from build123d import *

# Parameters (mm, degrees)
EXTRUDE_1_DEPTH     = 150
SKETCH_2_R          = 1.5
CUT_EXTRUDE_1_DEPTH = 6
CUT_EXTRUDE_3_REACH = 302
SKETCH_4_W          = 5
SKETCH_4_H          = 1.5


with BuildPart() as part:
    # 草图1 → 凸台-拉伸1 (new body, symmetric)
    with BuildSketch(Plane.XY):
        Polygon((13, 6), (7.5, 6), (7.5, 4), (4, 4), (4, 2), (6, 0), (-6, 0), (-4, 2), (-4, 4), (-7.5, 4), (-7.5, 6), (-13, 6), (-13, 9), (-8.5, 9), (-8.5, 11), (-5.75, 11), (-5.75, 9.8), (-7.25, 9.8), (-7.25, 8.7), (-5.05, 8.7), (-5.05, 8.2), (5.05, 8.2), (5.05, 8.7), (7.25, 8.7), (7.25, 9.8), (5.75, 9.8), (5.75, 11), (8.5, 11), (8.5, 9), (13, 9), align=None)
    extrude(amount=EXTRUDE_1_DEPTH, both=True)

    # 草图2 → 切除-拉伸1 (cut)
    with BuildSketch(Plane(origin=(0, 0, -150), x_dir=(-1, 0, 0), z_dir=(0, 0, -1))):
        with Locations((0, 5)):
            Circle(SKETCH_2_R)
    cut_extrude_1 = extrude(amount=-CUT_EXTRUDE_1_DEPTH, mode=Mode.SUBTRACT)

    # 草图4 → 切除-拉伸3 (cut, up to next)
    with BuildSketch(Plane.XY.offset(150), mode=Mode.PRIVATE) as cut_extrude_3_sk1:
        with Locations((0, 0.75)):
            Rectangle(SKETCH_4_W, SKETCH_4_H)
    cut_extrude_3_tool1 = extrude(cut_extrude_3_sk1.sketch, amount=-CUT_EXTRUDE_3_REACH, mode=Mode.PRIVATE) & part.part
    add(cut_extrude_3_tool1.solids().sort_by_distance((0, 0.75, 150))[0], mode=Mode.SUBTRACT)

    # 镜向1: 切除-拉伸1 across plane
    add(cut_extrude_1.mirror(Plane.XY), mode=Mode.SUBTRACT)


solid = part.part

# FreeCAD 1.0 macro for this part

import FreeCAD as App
import Part
import Sketcher

V = App.Vector
Q = App.Units.Quantity

doc = App.newDocument("Part")
body = doc.addObject("PartDesign::Body", "Body")

sketch1 = doc.addObject("Sketcher::SketchObject", "Sketch")
body.addObject(sketch1)
sketch1.AttachmentSupport = (doc.XY_Plane, [""])
sketch1.MapMode = "FlatFace"
sketch1.addGeometry([
    Part.LineSegment(V(7.5, 6, 0), V(13, 6, 0)),
    Part.LineSegment(V(13, 6, 0), V(13, 9, 0)),
    Part.LineSegment(V(13, 9, 0), V(8.5, 9, 0)),
    Part.LineSegment(V(8.5, 9, 0), V(8.5, 11, 0)),
    Part.LineSegment(V(8.5, 11, 0), V(5.75, 11, 0)),
    Part.LineSegment(V(5.75, 11, 0), V(5.75, 9.8, 0)),
    Part.LineSegment(V(5.75, 9.8, 0), V(7.25, 9.8, 0)),
    Part.LineSegment(V(7.25, 9.8, 0), V(7.25, 8.7, 0)),
    Part.LineSegment(V(7.25, 8.7, 0), V(5.05, 8.7, 0)),
    Part.LineSegment(V(5.05, 8.7, 0), V(5.05, 8.2, 0)),
    Part.LineSegment(V(5.05, 8.2, 0), V(-5.05, 8.2, 0)),
    Part.LineSegment(V(-5.05, 8.2, 0), V(-5.05, 8.7, 0)),
    Part.LineSegment(V(-5.05, 8.7, 0), V(-7.25, 8.7, 0)),
    Part.LineSegment(V(-7.25, 8.7, 0), V(-7.25, 9.8, 0)),
    Part.LineSegment(V(-7.25, 9.8, 0), V(-5.75, 9.8, 0)),
    Part.LineSegment(V(-5.75, 9.8, 0), V(-5.75, 11, 0)),
    Part.LineSegment(V(-5.75, 11, 0), V(-8.5, 11, 0)),
    Part.LineSegment(V(-8.5, 11, 0), V(-8.5, 9, 0)),
    Part.LineSegment(V(-8.5, 9, 0), V(-13, 9, 0)),
    Part.LineSegment(V(-13, 9, 0), V(-13, 6, 0)),
    Part.LineSegment(V(-13, 6, 0), V(-7.5, 6, 0)),
    Part.LineSegment(V(-7.5, 6, 0), V(-7.5, 4, 0)),
    Part.LineSegment(V(-7.5, 4, 0), V(-4, 4, 0)),
    Part.LineSegment(V(-4, 4, 0), V(-4, 2, 0)),
    Part.LineSegment(V(-4, 2, 0), V(-6, 0, 0)),
    Part.LineSegment(V(-6, 0, 0), V(6, 0, 0)),
    Part.LineSegment(V(6, 0, 0), V(4, 2, 0)),
    Part.LineSegment(V(4, 2, 0), V(4, 4, 0)),
    Part.LineSegment(V(4, 4, 0), V(7.5, 4, 0)),
    Part.LineSegment(V(7.5, 4, 0), V(7.5, 6, 0)),
], False)
sketch1.addConstraint([
    Sketcher.Constraint("Coincident", 0, 2, 1, 1),
    Sketcher.Constraint("Coincident", 1, 2, 2, 1),
    Sketcher.Constraint("Coincident", 2, 2, 3, 1),
    Sketcher.Constraint("Coincident", 3, 2, 4, 1),
    Sketcher.Constraint("Coincident", 4, 2, 5, 1),
    Sketcher.Constraint("Coincident", 5, 2, 6, 1),
    Sketcher.Constraint("Coincident", 6, 2, 7, 1),
    Sketcher.Constraint("Coincident", 7, 2, 8, 1),
    Sketcher.Constraint("Coincident", 8, 2, 9, 1),
    Sketcher.Constraint("Coincident", 9, 2, 10, 1),
    Sketcher.Constraint("Coincident", 10, 2, 11, 1),
    Sketcher.Constraint("Coincident", 11, 2, 12, 1),
    Sketcher.Constraint("Coincident", 12, 2, 13, 1),
    Sketcher.Constraint("Coincident", 13, 2, 14, 1),
    Sketcher.Constraint("Coincident", 14, 2, 15, 1),
    Sketcher.Constraint("Coincident", 15, 2, 16, 1),
    Sketcher.Constraint("Coincident", 16, 2, 17, 1),
    Sketcher.Constraint("Coincident", 17, 2, 18, 1),
    Sketcher.Constraint("Coincident", 18, 2, 19, 1),
    Sketcher.Constraint("Coincident", 19, 2, 20, 1),
    Sketcher.Constraint("Coincident", 20, 2, 21, 1),
    Sketcher.Constraint("Coincident", 21, 2, 22, 1),
    Sketcher.Constraint("Coincident", 22, 2, 23, 1),
    Sketcher.Constraint("Coincident", 23, 2, 24, 1),
    Sketcher.Constraint("Coincident", 24, 2, 25, 1),
    Sketcher.Constraint("Coincident", 25, 2, 26, 1),
    Sketcher.Constraint("Coincident", 26, 2, 27, 1),
    Sketcher.Constraint("Coincident", 27, 2, 28, 1),
    Sketcher.Constraint("Coincident", 28, 2, 29, 1),
    Sketcher.Constraint("Coincident", 29, 2, 0, 1),
    Sketcher.Constraint("Horizontal", 0),
    Sketcher.Constraint("Vertical", 1),
    Sketcher.Constraint("Horizontal", 2),
    Sketcher.Constraint("Vertical", 3),
    Sketcher.Constraint("Horizontal", 4),
    Sketcher.Constraint("Vertical", 5),
    Sketcher.Constraint("Horizontal", 6),
    Sketcher.Constraint("Vertical", 7),
    Sketcher.Constraint("Horizontal", 8),
    Sketcher.Constraint("Vertical", 9),
    Sketcher.Constraint("Horizontal", 10),
    Sketcher.Constraint("Vertical", 11),
    Sketcher.Constraint("Horizontal", 12),
    Sketcher.Constraint("Vertical", 13),
    Sketcher.Constraint("Horizontal", 14),
    Sketcher.Constraint("Vertical", 15),
    Sketcher.Constraint("Horizontal", 16),
    Sketcher.Constraint("Vertical", 17),
    Sketcher.Constraint("Horizontal", 18),
    Sketcher.Constraint("Vertical", 19),
    Sketcher.Constraint("Horizontal", 20),
    Sketcher.Constraint("Vertical", 21),
    Sketcher.Constraint("Horizontal", 22),
    Sketcher.Constraint("Vertical", 23),
    Sketcher.Constraint("Horizontal", 25),
    Sketcher.Constraint("Vertical", 27),
    Sketcher.Constraint("Horizontal", 28),
    Sketcher.Constraint("Vertical", 29),
    Sketcher.Constraint("Symmetric", 24, 2, 25, 2, -1, 1),
    Sketcher.Constraint("Symmetric", 8, 2, 11, 2, -2),
    Sketcher.Constraint("Symmetric", 6, 2, 13, 2, -2),
    Sketcher.Constraint("Symmetric", 4, 2, 15, 2, -2),
    Sketcher.Constraint("Symmetric", 2, 2, 17, 2, -2),
    Sketcher.Constraint("Symmetric", 0, 2, 19, 2, -2),
    Sketcher.Constraint("Symmetric", 23, 2, 26, 2, -2),
    Sketcher.Constraint("Symmetric", 21, 2, 28, 2, -2),
    Sketcher.Constraint("Perpendicular", 24, 26),
    Sketcher.Constraint("Equal", 17, 21),
    Sketcher.Constraint("Equal", 21, 23),
    Sketcher.Constraint("DistanceX", 25, 1, 25, 2, Q("12 mm")),
    Sketcher.Constraint("DistanceY", 1, 1, 1, 2, Q("3 mm")),
    Sketcher.Constraint("DistanceY", 3, 1, 3, 2, Q("2 mm")),
    Sketcher.Constraint("DistanceX", 0, 1, 0, 2, Q("5.5 mm")),
    Sketcher.Constraint("DistanceX", 2, 2, 2, 1, Q("4.5 mm")),
    Sketcher.Constraint("DistanceX", 6, 1, 6, 2, Q("1.5 mm")),
    Sketcher.Constraint("DistanceX", 8, 2, 8, 1, Q("2.2 mm")),
    Sketcher.Constraint("DistanceX", 10, 2, 10, 1, Q("10.1 mm")),
    Sketcher.Constraint("DistanceX", 22, 1, 22, 2, Q("3.5 mm")),
    Sketcher.Constraint("DistanceY", 5, 2, 5, 1, Q("1.2 mm")),
    Sketcher.Constraint("DistanceY", 7, 2, 7, 1, Q("1.1 mm")),
    Sketcher.Constraint("DistanceY", 9, 2, 9, 1, Q("0.5 mm")),
    Sketcher.Constraint("DistanceX", -1, 1, 0, 2, Q("13 mm")),
])
pad1 = doc.addObject("PartDesign::Pad", "Pad")
body.addObject(pad1)
pad1.Profile = sketch1
pad1.Length = 300
pad1.Midplane = True

sketch2 = doc.addObject("Sketcher::SketchObject", "Sketch001")
body.addObject(sketch2)
sketch2.AttachmentSupport = (doc.XY_Plane, [""])
sketch2.MapMode = "FlatFace"
sketch2.AttachmentOffset = App.Placement(V(0, 0, -150), App.Rotation())
sketch2.addGeometry(Part.Circle(V(0, 5, 0), V(0, 0, 1), 1.5), False)
sketch2.addConstraint([
    Sketcher.Constraint("PointOnObject", 0, 3, -2),
    Sketcher.Constraint("Diameter", 0, Q("3 mm")),
    Sketcher.Constraint("DistanceY", -1, 1, 0, 3, Q("5 mm")),
])
pocket1 = doc.addObject("PartDesign::Pocket", "Pocket")
body.addObject(pocket1)
pocket1.Profile = sketch2
pocket1.Length = 6
pocket1.Reversed = True

sketch3 = doc.addObject("Sketcher::SketchObject", "Sketch002")
body.addObject(sketch3)
sketch3.AttachmentSupport = (doc.XY_Plane, [""])
sketch3.MapMode = "FlatFace"
sketch3.AttachmentOffset = App.Placement(V(0, 0, 150), App.Rotation())
sketch3.addGeometry([
    Part.LineSegment(V(-2.5, 1.5, 0), V(-2.5, 0, 0)),
    Part.LineSegment(V(-2.5, 0, 0), V(2.5, 0, 0)),
    Part.LineSegment(V(2.5, 0, 0), V(2.5, 1.5, 0)),
    Part.LineSegment(V(2.5, 1.5, 0), V(-2.5, 1.5, 0)),
], False)
sketch3.addConstraint([
    Sketcher.Constraint("Coincident", 0, 2, 1, 1),
    Sketcher.Constraint("Coincident", 1, 2, 2, 1),
    Sketcher.Constraint("Coincident", 2, 2, 3, 1),
    Sketcher.Constraint("Coincident", 3, 2, 0, 1),
    Sketcher.Constraint("Vertical", 0),
    Sketcher.Constraint("Horizontal", 1),
    Sketcher.Constraint("Vertical", 2),
    Sketcher.Constraint("Horizontal", 3),
    Sketcher.Constraint("Symmetric", 0, 2, 1, 2, -1, 1),
    Sketcher.Constraint("DistanceX", 1, 1, 1, 2, Q("5 mm")),
    Sketcher.Constraint("DistanceY", 0, 2, 0, 1, Q("1.5 mm")),
])
pocket2 = doc.addObject("PartDesign::Pocket", "Pocket001")
body.addObject(pocket2)
pocket2.Profile = sketch3
pocket2.Type = "UpToFirst"
doc.recompute()

mirrored = doc.addObject("PartDesign::Mirrored", "Mirrored")
body.addObject(mirrored)
mirrored.Originals = [pocket1]
mirrored.MirrorPlane = (doc.XY_Plane, [""])
body.Tip = mirrored

doc.recompute()
